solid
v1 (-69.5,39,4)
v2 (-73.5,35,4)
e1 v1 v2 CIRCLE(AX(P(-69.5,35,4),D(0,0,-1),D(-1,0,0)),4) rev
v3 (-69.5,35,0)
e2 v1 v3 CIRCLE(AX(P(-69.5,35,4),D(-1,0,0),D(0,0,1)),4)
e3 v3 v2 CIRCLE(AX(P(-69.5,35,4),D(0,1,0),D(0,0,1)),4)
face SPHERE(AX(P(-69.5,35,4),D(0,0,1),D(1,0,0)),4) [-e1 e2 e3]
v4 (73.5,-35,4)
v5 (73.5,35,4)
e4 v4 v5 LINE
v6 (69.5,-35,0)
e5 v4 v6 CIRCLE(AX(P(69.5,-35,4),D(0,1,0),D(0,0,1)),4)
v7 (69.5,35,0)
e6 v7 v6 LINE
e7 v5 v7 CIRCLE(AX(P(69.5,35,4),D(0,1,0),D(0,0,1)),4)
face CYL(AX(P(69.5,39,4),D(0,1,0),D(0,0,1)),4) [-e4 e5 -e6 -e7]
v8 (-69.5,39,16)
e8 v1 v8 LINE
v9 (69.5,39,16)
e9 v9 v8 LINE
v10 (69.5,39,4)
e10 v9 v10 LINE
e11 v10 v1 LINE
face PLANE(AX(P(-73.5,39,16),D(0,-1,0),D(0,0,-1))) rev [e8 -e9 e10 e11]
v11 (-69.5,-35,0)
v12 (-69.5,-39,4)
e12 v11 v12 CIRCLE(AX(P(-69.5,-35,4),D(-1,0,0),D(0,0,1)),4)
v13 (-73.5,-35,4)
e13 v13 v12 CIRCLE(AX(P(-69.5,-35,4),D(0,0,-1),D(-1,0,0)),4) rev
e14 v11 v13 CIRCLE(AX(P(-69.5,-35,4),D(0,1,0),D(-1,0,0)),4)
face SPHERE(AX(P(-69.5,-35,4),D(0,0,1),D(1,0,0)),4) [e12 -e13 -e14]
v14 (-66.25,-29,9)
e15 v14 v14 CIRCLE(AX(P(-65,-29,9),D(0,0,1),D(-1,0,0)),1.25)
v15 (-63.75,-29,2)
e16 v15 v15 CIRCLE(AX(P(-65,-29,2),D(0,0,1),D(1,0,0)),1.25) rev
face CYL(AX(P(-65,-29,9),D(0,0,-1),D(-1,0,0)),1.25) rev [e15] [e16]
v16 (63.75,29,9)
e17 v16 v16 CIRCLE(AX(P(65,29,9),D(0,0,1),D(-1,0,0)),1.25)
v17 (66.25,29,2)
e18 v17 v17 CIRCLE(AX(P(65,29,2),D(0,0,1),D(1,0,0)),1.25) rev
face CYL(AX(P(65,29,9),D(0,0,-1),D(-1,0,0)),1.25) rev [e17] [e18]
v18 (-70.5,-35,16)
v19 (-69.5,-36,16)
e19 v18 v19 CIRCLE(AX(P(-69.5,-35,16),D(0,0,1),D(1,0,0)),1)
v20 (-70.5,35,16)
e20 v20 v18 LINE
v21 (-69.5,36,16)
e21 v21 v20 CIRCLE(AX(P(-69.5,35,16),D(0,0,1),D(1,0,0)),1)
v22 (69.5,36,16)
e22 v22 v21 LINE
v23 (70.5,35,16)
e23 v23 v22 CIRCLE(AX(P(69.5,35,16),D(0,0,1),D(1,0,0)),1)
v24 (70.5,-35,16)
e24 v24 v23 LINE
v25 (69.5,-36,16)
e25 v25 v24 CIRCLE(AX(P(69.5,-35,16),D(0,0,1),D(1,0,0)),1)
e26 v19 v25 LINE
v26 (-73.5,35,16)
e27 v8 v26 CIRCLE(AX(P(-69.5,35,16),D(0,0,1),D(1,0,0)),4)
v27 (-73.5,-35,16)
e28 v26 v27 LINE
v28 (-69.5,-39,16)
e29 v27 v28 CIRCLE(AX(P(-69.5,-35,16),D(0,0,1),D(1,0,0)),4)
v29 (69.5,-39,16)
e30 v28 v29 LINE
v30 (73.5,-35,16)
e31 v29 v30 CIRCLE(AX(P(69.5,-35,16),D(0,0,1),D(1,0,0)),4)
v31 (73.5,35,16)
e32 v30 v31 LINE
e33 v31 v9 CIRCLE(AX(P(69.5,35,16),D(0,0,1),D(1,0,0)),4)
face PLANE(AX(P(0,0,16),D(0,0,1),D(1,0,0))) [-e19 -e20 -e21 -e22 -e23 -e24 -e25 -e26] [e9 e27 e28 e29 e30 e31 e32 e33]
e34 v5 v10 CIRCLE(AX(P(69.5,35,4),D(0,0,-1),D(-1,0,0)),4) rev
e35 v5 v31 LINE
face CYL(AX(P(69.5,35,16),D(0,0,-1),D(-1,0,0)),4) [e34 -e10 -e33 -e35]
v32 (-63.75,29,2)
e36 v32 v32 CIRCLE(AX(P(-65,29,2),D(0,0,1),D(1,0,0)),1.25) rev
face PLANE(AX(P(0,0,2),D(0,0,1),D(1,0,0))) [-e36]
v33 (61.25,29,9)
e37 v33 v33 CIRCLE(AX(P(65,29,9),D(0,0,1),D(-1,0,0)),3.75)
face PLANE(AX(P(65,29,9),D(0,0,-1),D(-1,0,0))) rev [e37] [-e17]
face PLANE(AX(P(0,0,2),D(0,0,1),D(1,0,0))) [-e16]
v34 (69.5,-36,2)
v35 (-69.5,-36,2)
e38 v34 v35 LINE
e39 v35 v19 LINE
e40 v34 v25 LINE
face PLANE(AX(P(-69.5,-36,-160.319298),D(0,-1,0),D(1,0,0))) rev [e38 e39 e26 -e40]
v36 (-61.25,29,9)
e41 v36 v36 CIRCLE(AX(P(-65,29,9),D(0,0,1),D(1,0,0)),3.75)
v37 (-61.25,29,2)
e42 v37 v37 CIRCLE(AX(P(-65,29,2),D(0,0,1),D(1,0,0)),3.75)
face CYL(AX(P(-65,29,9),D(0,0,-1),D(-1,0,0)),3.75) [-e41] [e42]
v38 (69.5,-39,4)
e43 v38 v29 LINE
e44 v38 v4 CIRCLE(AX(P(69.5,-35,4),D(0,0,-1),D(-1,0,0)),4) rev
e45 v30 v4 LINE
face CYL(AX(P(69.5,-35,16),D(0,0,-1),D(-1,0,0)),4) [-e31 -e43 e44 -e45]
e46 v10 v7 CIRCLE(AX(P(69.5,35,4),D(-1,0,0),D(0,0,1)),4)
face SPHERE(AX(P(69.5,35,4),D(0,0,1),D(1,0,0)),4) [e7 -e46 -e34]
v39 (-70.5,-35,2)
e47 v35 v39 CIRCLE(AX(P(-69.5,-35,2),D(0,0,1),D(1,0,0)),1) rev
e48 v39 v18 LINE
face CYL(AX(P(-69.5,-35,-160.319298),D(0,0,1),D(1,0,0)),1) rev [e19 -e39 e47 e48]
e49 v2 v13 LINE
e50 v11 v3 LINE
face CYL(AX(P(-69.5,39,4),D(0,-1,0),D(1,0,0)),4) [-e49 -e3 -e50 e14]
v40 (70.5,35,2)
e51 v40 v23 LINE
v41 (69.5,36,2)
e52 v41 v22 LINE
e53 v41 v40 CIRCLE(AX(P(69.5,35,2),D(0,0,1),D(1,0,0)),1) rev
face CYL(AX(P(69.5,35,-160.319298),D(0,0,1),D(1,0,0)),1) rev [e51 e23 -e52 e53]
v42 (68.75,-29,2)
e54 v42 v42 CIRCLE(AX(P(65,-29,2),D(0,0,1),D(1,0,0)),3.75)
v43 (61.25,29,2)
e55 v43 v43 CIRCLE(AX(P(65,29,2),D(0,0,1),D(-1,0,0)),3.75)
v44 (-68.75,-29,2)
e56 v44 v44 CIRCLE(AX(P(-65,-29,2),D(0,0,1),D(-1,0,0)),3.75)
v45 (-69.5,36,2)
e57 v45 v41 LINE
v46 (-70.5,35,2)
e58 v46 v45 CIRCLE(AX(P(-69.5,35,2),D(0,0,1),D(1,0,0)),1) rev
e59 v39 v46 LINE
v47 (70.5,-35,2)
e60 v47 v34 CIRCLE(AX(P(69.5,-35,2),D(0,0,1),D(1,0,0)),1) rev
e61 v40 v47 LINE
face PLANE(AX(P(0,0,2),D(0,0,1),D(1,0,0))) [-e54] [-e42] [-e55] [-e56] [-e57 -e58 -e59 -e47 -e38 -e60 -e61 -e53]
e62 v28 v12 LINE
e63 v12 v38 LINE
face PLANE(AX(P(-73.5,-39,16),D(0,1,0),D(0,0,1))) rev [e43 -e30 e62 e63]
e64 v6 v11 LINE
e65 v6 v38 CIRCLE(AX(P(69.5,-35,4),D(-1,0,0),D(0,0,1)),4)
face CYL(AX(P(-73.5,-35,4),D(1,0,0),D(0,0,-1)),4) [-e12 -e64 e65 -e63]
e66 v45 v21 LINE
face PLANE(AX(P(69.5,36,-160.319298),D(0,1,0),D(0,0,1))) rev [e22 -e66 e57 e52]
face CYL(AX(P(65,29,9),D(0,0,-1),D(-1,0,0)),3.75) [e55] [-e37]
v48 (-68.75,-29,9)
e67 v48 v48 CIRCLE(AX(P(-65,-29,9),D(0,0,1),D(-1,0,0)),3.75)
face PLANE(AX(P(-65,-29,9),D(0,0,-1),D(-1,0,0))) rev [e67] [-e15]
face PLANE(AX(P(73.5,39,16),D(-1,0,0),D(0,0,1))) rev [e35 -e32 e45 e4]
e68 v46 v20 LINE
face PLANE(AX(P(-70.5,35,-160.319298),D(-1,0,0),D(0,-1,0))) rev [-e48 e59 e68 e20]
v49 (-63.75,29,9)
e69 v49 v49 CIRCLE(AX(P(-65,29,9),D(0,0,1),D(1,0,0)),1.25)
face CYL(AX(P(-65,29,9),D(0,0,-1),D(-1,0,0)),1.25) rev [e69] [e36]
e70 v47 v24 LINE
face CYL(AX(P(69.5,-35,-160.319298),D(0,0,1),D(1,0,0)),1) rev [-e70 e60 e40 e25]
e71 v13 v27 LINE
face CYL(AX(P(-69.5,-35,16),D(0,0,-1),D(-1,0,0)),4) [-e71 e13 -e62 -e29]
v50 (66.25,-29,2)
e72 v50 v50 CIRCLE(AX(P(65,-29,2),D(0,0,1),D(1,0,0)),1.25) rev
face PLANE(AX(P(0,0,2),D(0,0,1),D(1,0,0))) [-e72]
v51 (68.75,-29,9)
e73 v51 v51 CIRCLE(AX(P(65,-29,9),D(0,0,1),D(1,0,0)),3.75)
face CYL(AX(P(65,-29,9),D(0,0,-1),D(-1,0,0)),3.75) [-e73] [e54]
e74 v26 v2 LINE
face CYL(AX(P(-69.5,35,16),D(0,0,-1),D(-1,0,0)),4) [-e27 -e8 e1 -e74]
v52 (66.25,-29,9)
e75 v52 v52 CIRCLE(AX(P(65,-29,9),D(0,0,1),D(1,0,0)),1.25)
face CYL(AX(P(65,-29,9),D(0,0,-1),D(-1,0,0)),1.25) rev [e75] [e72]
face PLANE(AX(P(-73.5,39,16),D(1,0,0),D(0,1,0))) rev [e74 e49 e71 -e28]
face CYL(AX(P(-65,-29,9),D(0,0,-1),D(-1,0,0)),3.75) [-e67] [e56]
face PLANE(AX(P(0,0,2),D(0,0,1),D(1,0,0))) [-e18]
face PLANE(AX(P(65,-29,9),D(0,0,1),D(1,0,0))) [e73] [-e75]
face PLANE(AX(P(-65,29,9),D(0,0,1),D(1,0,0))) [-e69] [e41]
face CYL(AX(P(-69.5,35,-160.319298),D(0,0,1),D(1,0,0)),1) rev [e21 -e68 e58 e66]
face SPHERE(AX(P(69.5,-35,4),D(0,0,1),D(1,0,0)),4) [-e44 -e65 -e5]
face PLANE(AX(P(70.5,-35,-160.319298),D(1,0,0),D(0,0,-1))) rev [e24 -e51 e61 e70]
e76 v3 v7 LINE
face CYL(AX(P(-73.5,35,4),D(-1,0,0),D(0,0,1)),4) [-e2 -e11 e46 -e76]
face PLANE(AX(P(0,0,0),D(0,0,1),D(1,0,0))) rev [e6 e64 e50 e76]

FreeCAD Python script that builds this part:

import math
import FreeCAD as App
import Part
import Sketcher

V = App.Vector


def edges_at(feature, points):
    """Names of the edges that pass closest to the given points."""
    edges = feature.Shape.Edges
    near = lambda p: min(range(len(edges)), key=lambda i: edges[i].distToShape(Part.Vertex(*p))[0])
    return sorted({f"Edge{near(p) + 1}" for p in points})

doc = App.newDocument("Part")
body = doc.addObject("PartDesign::Body", "Body")

# Sketch on XY plane
sketch1 = doc.addObject("Sketcher::SketchObject", "Sketch")
body.addObject(sketch1)
sketch1.AttachmentSupport = (doc.XY_Plane, [""])
sketch1.MapMode = "FlatFace"
sketch1.addGeometry(Part.LineSegment(V(-73.5, 39, 0), V(-73.5, -39, 0)), False)
sketch1.addGeometry(Part.LineSegment(V(-73.5, -39, 0), V(73.5, -39, 0)), False)
sketch1.addGeometry(Part.LineSegment(V(73.5, -39, 0), V(73.5, 39, 0)), False)
sketch1.addGeometry(Part.LineSegment(V(73.5, 39, 0), V(-73.5, 39, 0)), False)
sketch1.addConstraint(Sketcher.Constraint("Coincident", 0, 2, 1, 1))
sketch1.addConstraint(Sketcher.Constraint("Coincident", 1, 2, 2, 1))
sketch1.addConstraint(Sketcher.Constraint("Coincident", 2, 2, 3, 1))
sketch1.addConstraint(Sketcher.Constraint("Coincident", 3, 2, 0, 1))
sketch1.addConstraint(Sketcher.Constraint("Vertical", 0))
sketch1.addConstraint(Sketcher.Constraint("Horizontal", 1))
sketch1.addConstraint(Sketcher.Constraint("Vertical", 2))
sketch1.addConstraint(Sketcher.Constraint("Horizontal", 3))
sketch1.addConstraint(Sketcher.Constraint("Symmetric", 0, 2, 2, 2, -1, 1))
sketch1.addConstraint(Sketcher.Constraint("DistanceX", 1, 1, 1, 2, 147.0))
sketch1.addConstraint(Sketcher.Constraint("DistanceY", 0, 2, 0, 1, 78.0))
pad1 = doc.addObject("PartDesign::Pad", "Pad")
body.addObject(pad1)
pad1.Profile = sketch1
pad1.Length = 16
doc.recompute()

fillet = doc.addObject("PartDesign::Fillet", "Fillet")
body.addObject(fillet)
fillet.Base = (pad1, edges_at(pad1, [
    (73.5, -39, 8),
    (-73.5, -39, 8),
    (-73.5, 39, 8),
    (73.5, 39, 8),
]))
fillet.Radius = 4
doc.recompute()

fillet2 = doc.addObject("PartDesign::Fillet", "Fillet001")
body.addObject(fillet2)
fillet2.Base = (fillet, edges_at(fillet, [
    (0, -39, 0),
    (73.5, 0, 0),
    (-73.5, 0, 0),
    (0, 39, 0),
    (-72.328, 37.828, 0),
    (72.328, 37.828, 0),
    (72.328, -37.828, 0),
    (-72.328, -37.828, 0),
]))
fillet2.Radius = 4

# Sketch on XY plane
sketch2 = doc.addObject("Sketcher::SketchObject", "Sketch001")
body.addObject(sketch2)
sketch2.AttachmentSupport = (doc.XY_Plane, [""])
sketch2.MapMode = "FlatFace"
sketch2.AttachmentOffset = App.Placement(V(0, 0, 16), App.Rotation())
sketch2.addGeometry(Part.LineSegment(V(-70.5, 35, 0), V(-70.5, -35, 0)), False)
sketch2.addGeometry(Part.ArcOfCircle(Part.Circle(V(-69.5, -35, 0), V(0, 0, 1), 1), math.radians(-180), math.radians(-90)), False)
sketch2.addGeometry(Part.LineSegment(V(-69.5, -36, 0), V(69.5, -36, 0)), False)
sketch2.addGeometry(Part.ArcOfCircle(Part.Circle(V(69.5, -35, 0), V(0, 0, 1), 1), math.radians(-90), math.radians(0)), False)
sketch2.addGeometry(Part.LineSegment(V(70.5, -35, 0), V(70.5, 35, 0)), False)
sketch2.addGeometry(Part.ArcOfCircle(Part.Circle(V(69.5, 35, 0), V(0, 0, 1), 1), math.radians(0), math.radians(90)), False)
sketch2.addGeometry(Part.LineSegment(V(69.5, 36, 0), V(-69.5, 36, 0)), False)
sketch2.addGeometry(Part.ArcOfCircle(Part.Circle(V(-69.5, 35, 0), V(0, 0, 1), 1), math.radians(90), math.radians(180)), False)
sketch2.addConstraint(Sketcher.Constraint("Tangent", 0, 2, 1, 1))
sketch2.addConstraint(Sketcher.Constraint("Tangent", 1, 2, 2, 1))
sketch2.addConstraint(Sketcher.Constraint("Tangent", 2, 2, 3, 1))
sketch2.addConstraint(Sketcher.Constraint("Tangent", 3, 2, 4, 1))
sketch2.addConstraint(Sketcher.Constraint("Tangent", 4, 2, 5, 1))
sketch2.addConstraint(Sketcher.Constraint("Tangent", 5, 2, 6, 1))
sketch2.addConstraint(Sketcher.Constraint("Tangent", 6, 2, 7, 1))
sketch2.addConstraint(Sketcher.Constraint("Tangent", 7, 2, 0, 1))
sketch2.addConstraint(Sketcher.Constraint("Vertical", 0))
sketch2.addConstraint(Sketcher.Constraint("Horizontal", 2))
sketch2.addConstraint(Sketcher.Constraint("Vertical", 4))
sketch2.addConstraint(Sketcher.Constraint("Horizontal", 6))
sketch2.addConstraint(Sketcher.Constraint("Equal", 1, 3))
sketch2.addConstraint(Sketcher.Constraint("Equal", 3, 5))
sketch2.addConstraint(Sketcher.Constraint("Equal", 5, 7))
sketch2.addConstraint(Sketcher.Constraint("Symmetric", 1, 3, 5, 3, -1, 1))
sketch2.addConstraint(Sketcher.Constraint("Radius", 1, 1.0))
sketch2.addConstraint(Sketcher.Constraint("DistanceX", 2, 1, 2, 2, 139.0))
sketch2.addConstraint(Sketcher.Constraint("DistanceY", 0, 2, 0, 1, 70.0))
pocket1 = doc.addObject("PartDesign::Pocket", "Pocket")
body.addObject(pocket1)
pocket1.Profile = sketch2
pocket1.Length = 14

# Sketch on XY plane
sketch3 = doc.addObject("Sketcher::SketchObject", "Sketch002")
body.addObject(sketch3)
sketch3.AttachmentSupport = (doc.XY_Plane, [""])
sketch3.MapMode = "FlatFace"
sketch3.AttachmentOffset = App.Placement(V(0, 0, 2), App.Rotation())
sketch3.addGeometry(Part.Circle(V(-65, 29, 0), V(0, 0, 1), 3.75), False)
sketch3.addGeometry(Part.Circle(V(-65, 29, 0), V(0, 0, 1), 1.25), False)
sketch3.addGeometry(Part.Circle(V(65, 29, 0), V(0, 0, 1), 3.75), False)
sketch3.addGeometry(Part.Circle(V(65, 29, 0), V(0, 0, 1), 1.25), False)
sketch3.addGeometry(Part.Circle(V(65, -29, 0), V(0, 0, 1), 3.75), False)
sketch3.addGeometry(Part.Circle(V(65, -29, 0), V(0, 0, 1), 1.25), False)
sketch3.addGeometry(Part.Circle(V(-65, -29, 0), V(0, 0, 1), 3.75), False)
sketch3.addGeometry(Part.Circle(V(-65, -29, 0), V(0, 0, 1), 1.25), False)
sketch3.addConstraint(Sketcher.Constraint("Coincident", 1, 3, 0, 3))
sketch3.addConstraint(Sketcher.Constraint("Coincident", 3, 3, 2, 3))
sketch3.addConstraint(Sketcher.Constraint("Coincident", 5, 3, 4, 3))
sketch3.addConstraint(Sketcher.Constraint("Coincident", 7, 3, 6, 3))
sketch3.addConstraint(Sketcher.Constraint("Equal", 0, 2))
sketch3.addConstraint(Sketcher.Constraint("Equal", 1, 3))
sketch3.addConstraint(Sketcher.Constraint("Equal", 2, 4))
sketch3.addConstraint(Sketcher.Constraint("Equal", 3, 5))
sketch3.addConstraint(Sketcher.Constraint("Equal", 4, 6))
sketch3.addConstraint(Sketcher.Constraint("Equal", 5, 7))
sketch3.addConstraint(Sketcher.Constraint("Symmetric", 0, 3, 4, 3, -1, 1))
sketch3.addConstraint(Sketcher.Constraint("Symmetric", 2, 3, 6, 3, -1, 1))
sketch3.addConstraint(Sketcher.Constraint("Symmetric", 0, 3, 2, 3, -2))
sketch3.addConstraint(Sketcher.Constraint("Diameter", 0, 7.5))
sketch3.addConstraint(Sketcher.Constraint("Diameter", 1, 2.5))
sketch3.addConstraint(Sketcher.Constraint("DistanceX", 0, 3, -1, 1, 65.0))
sketch3.addConstraint(Sketcher.Constraint("DistanceY", -1, 1, 0, 3, 29.0))
pad2 = doc.addObject("PartDesign::Pad", "Pad001")
body.addObject(pad2)
pad2.Profile = sketch3
pad2.Length = 7

doc.recompute()
